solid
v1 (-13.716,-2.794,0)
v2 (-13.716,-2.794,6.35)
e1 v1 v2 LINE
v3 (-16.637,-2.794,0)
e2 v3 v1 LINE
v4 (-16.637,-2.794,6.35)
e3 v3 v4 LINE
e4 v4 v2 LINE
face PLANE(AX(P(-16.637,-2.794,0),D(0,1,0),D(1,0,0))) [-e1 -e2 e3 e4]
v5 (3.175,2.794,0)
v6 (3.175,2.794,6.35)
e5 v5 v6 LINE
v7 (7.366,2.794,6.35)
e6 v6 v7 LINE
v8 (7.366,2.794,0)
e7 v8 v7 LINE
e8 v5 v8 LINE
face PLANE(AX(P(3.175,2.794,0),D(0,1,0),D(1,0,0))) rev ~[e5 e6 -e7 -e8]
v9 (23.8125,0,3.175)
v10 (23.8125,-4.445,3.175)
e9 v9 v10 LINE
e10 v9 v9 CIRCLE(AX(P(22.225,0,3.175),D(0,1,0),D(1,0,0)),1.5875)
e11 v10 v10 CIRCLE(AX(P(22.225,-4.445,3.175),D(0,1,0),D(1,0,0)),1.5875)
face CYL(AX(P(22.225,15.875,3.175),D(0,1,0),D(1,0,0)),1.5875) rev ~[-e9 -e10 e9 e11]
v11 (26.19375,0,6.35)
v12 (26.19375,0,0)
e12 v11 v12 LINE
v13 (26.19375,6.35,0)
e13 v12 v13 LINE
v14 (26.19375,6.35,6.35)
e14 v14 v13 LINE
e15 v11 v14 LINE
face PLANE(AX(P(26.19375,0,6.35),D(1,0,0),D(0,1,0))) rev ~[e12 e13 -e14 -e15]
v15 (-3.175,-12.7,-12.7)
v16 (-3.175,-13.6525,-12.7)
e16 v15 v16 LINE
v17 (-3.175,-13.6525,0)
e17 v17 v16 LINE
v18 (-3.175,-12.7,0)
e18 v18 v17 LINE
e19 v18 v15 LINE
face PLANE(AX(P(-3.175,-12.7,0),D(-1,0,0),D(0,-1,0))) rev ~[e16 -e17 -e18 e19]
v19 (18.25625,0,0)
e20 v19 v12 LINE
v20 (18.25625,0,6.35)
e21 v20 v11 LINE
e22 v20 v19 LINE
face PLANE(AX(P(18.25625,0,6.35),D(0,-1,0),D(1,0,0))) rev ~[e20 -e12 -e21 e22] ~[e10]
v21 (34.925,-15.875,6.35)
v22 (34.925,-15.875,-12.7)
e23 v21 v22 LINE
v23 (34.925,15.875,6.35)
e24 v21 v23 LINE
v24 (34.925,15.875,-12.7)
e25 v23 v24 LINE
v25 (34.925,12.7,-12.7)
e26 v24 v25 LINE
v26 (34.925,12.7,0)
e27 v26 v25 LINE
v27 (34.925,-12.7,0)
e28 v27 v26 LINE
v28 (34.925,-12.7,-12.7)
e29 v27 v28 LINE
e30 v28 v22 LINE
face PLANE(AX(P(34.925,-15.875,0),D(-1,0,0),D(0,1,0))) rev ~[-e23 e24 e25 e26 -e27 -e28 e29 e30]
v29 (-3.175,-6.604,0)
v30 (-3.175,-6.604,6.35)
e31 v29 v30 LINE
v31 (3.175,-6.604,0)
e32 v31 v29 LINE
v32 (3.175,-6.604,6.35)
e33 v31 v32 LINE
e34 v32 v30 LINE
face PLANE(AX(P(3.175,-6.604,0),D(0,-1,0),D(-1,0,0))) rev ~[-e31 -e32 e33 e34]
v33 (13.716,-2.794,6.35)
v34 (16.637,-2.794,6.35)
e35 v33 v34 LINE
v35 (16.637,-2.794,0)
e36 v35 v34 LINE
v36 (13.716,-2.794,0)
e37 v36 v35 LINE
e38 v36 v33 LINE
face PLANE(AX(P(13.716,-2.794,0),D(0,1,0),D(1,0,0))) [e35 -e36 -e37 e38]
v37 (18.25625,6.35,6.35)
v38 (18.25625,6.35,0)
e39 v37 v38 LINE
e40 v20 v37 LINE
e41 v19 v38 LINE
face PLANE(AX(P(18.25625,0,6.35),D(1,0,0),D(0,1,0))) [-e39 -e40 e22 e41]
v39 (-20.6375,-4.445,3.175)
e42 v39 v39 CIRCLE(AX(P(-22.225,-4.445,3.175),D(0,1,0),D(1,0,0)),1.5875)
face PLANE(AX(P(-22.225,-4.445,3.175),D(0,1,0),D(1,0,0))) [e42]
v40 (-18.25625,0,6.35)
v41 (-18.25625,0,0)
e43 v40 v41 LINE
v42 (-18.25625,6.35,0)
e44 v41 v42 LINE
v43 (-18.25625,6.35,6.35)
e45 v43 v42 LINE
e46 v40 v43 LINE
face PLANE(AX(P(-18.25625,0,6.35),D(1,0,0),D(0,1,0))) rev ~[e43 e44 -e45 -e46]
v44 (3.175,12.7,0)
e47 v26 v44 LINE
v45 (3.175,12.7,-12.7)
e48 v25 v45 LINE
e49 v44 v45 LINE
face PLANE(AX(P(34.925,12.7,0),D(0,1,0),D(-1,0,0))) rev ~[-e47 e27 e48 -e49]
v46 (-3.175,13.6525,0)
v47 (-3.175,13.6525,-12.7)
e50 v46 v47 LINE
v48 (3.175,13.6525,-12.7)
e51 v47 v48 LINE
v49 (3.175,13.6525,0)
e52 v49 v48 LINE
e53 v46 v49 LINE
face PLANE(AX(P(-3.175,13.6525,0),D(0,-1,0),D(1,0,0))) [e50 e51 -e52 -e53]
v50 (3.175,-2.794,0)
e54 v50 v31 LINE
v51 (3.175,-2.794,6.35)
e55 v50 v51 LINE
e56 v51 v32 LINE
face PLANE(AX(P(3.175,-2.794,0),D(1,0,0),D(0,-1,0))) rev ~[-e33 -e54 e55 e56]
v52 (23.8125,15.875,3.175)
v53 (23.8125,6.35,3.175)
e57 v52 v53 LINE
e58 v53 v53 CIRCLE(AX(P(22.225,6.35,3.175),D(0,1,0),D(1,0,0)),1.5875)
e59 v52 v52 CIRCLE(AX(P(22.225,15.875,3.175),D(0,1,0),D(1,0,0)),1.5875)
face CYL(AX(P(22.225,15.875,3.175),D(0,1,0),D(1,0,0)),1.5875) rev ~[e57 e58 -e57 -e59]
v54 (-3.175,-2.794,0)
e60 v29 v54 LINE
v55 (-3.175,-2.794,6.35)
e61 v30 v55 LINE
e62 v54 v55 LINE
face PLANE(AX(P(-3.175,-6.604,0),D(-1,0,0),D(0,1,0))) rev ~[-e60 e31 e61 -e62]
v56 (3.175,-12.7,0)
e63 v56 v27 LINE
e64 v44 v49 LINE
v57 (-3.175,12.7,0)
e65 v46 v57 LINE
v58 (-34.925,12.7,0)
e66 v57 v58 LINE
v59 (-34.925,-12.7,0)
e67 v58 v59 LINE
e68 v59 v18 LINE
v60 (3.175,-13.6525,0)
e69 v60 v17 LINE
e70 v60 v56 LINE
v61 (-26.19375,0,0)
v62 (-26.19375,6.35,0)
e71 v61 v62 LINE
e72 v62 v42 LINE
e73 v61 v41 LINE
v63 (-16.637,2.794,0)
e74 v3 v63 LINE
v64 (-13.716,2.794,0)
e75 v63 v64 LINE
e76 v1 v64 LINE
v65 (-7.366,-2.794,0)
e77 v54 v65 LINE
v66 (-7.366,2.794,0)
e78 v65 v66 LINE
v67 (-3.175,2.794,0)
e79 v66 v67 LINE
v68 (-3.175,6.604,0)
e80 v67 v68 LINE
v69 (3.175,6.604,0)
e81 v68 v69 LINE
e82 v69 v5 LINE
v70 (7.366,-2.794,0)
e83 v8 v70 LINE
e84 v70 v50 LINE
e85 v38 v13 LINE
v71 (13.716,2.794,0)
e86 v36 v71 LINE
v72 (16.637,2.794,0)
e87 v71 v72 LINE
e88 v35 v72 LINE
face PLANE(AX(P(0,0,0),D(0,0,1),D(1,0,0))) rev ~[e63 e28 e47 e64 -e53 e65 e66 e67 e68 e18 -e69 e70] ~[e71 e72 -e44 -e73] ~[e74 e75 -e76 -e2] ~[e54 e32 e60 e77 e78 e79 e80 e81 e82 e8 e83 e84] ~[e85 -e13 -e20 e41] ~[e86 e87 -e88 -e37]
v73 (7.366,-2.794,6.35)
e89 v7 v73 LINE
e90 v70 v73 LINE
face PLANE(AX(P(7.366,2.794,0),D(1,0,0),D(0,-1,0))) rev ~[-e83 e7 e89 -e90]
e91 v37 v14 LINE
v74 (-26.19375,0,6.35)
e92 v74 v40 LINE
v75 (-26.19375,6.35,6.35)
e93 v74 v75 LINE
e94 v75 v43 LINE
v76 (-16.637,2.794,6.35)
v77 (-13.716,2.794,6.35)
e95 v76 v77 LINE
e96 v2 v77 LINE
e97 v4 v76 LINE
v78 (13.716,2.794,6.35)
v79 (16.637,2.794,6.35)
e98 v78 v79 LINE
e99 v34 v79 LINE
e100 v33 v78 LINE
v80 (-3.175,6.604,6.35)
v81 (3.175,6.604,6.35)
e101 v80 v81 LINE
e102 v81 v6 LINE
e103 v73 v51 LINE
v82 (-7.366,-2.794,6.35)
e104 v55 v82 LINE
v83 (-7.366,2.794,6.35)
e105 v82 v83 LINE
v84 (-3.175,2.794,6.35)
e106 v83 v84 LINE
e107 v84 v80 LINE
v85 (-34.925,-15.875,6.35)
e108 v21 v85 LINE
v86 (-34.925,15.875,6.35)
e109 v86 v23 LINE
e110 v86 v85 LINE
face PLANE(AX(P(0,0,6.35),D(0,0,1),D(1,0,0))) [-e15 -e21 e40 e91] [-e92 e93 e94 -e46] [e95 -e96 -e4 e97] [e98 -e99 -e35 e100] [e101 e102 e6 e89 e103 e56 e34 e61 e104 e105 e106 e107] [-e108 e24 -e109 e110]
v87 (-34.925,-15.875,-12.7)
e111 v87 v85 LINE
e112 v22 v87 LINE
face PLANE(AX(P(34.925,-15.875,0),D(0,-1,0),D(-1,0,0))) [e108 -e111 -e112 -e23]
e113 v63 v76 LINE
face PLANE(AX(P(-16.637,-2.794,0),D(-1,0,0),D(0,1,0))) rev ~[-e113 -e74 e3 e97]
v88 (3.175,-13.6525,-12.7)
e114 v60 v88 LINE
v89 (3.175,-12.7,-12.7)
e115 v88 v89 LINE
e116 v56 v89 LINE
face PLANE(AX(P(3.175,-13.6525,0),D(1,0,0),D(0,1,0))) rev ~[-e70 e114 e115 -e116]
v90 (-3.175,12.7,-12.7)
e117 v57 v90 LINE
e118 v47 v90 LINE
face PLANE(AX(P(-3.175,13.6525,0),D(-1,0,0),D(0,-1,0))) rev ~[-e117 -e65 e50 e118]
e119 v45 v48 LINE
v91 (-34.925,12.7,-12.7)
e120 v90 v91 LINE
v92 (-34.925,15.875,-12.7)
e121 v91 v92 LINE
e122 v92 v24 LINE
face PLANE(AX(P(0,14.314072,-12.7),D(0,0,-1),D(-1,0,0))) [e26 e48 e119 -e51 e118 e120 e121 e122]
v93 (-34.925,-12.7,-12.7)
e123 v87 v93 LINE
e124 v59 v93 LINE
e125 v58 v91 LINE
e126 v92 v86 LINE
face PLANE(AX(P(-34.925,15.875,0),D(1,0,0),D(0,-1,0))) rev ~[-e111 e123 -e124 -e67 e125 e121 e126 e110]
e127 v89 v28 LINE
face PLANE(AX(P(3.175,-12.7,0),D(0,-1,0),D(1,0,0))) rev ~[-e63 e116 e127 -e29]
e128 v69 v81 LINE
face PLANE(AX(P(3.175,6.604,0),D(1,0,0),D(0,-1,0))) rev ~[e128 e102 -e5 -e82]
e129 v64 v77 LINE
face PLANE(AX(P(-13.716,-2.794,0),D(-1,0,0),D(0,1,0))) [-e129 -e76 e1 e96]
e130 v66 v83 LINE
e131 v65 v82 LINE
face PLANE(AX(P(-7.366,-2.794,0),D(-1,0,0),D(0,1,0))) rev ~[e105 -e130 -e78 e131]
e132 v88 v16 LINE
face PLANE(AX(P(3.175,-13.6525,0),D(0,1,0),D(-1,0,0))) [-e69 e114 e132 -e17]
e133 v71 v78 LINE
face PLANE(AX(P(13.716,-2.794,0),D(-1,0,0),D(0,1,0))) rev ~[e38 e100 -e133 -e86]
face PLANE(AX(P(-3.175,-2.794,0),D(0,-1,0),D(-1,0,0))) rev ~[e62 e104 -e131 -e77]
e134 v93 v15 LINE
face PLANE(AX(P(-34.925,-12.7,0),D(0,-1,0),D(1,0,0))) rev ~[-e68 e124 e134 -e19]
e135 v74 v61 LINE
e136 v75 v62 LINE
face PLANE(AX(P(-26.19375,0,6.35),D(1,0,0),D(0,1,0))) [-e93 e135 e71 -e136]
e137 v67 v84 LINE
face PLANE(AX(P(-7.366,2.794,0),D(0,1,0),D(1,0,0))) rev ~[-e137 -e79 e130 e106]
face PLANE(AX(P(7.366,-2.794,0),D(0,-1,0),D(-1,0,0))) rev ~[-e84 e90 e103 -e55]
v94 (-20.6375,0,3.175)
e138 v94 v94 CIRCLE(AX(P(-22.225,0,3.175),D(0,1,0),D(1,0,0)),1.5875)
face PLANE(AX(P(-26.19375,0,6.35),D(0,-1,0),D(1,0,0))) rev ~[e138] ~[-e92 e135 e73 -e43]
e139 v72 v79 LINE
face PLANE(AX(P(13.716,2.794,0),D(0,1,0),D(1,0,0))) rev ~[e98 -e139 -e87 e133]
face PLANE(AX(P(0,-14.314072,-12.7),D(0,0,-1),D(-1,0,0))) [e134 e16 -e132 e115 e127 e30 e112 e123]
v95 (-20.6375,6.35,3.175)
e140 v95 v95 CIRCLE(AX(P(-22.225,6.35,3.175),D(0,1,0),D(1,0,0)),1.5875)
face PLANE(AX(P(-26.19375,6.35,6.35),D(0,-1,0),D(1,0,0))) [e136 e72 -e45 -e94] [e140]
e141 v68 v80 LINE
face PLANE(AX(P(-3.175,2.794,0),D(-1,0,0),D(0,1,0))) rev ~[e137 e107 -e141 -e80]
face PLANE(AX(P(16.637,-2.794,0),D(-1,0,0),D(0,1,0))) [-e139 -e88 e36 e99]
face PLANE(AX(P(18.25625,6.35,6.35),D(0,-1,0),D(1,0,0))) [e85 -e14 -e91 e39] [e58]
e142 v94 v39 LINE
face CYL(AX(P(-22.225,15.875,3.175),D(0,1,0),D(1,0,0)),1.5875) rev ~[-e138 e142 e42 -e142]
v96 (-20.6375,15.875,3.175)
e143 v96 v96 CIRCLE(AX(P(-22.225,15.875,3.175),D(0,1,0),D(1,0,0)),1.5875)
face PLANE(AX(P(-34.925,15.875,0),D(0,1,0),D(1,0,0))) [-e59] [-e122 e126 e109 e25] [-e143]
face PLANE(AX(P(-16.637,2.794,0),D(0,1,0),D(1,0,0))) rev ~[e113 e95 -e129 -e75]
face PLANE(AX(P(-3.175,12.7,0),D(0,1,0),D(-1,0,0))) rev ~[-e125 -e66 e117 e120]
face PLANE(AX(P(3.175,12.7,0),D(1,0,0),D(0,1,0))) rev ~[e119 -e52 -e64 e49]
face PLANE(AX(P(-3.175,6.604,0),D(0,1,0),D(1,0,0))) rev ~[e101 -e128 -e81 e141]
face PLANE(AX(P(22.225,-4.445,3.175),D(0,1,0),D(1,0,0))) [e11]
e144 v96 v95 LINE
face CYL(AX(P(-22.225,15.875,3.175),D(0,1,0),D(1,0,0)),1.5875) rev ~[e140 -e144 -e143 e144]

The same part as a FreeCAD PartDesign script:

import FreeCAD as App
import Part
import Sketcher
Q = App.Units.Quantity


def add_polygon(sketch, points):
    """Adds a closed chain of lines whose ends are joined by coincident constraints."""
    first, n = sketch.GeometryCount, len(points)
    for a, b in zip(points, points[1:] + points[:1]):
        sketch.addGeometry(Part.LineSegment(App.Vector(*a, 0), App.Vector(*b, 0)), False)
    for i in range(n):
        sketch.addConstraint(Sketcher.Constraint("Coincident", first + i, 2, first + (i + 1) % n, 1))

doc = App.newDocument("Part")
body = doc.addObject("PartDesign::Body", "Body")

sketch1 = body.newObject("Sketcher::SketchObject", "Sketch")
sketch1.AttachmentSupport = (doc.getObject("XY_Plane"), [""])
sketch1.MapMode = "FlatFace"
add_polygon(sketch1, [(3.2, 12.7), (34.9, 12.7), (34.9, 15.9), (-34.9, 15.9), (-34.9, 12.7), (-3.2, 12.7), (-3.2, 13.7), (3.2, 13.7)])
sketch1.addConstraint(Sketcher.Constraint("Horizontal", 0))
sketch1.addConstraint(Sketcher.Constraint("Vertical", 1))
sketch1.addConstraint(Sketcher.Constraint("Horizontal", 2))
sketch1.addConstraint(Sketcher.Constraint("Vertical", 3))
sketch1.addConstraint(Sketcher.Constraint("Horizontal", 4))
sketch1.addConstraint(Sketcher.Constraint("Vertical", 5))
sketch1.addConstraint(Sketcher.Constraint("Horizontal", 6))
sketch1.addConstraint(Sketcher.Constraint("Vertical", 7))
sketch1.addConstraint(Sketcher.Constraint("Symmetric", 0, 2, 3, 2, -2))
sketch1.addConstraint(Sketcher.Constraint("Equal", 0, 4))
sketch1.addConstraint(Sketcher.Constraint("DistanceX", 0, 1, 0, 2, Q("1.25 in")))
sketch1.addConstraint(Sketcher.Constraint("DistanceX", 2, 2, 2, 1, Q("2.75 in")))
sketch1.addConstraint(Sketcher.Constraint("DistanceY", -1, 1, 0, 2, Q("0.5 in")))
sketch1.addConstraint(Sketcher.Constraint("DistanceY", 1, 1, 1, 2, Q("0.125 in")))
sketch1.addConstraint(Sketcher.Constraint("DistanceY", 5, 1, 5, 2, Q("0.0375 in")))
pad1 = body.newObject("PartDesign::Pad", "Pad")
pad1.Profile = sketch1
pad1.Length = Q("0.5 in")
pad1.Reversed = True
body2 = doc.addObject("PartDesign::Body", "Body001")

sketch2 = body2.newObject("Sketcher::SketchObject", "Sketch001")
sketch2.AttachmentSupport = (doc.getObject("XY_Plane001"), [""])
sketch2.MapMode = "FlatFace"
add_polygon(sketch2, [(-3.2, -12.7), (-34.9, -12.7), (-34.9, -15.9), (34.9, -15.9), (34.9, -12.7), (3.2, -12.7), (3.2, -13.7), (-3.2, -13.7)])
sketch2.addConstraint(Sketcher.Constraint("Horizontal", 0))
sketch2.addConstraint(Sketcher.Constraint("Vertical", 1))
sketch2.addConstraint(Sketcher.Constraint("Horizontal", 2))
sketch2.addConstraint(Sketcher.Constraint("Vertical", 3))
sketch2.addConstraint(Sketcher.Constraint("Horizontal", 4))
sketch2.addConstraint(Sketcher.Constraint("Vertical", 5))
sketch2.addConstraint(Sketcher.Constraint("Horizontal", 6))
sketch2.addConstraint(Sketcher.Constraint("Vertical", 7))
sketch2.addConstraint(Sketcher.Constraint("Symmetric", 0, 2, 3, 2, -2))
sketch2.addConstraint(Sketcher.Constraint("Equal", 0, 4))
sketch2.addConstraint(Sketcher.Constraint("DistanceX", 0, 2, 0, 1, Q("1.25 in")))
sketch2.addConstraint(Sketcher.Constraint("DistanceX", 2, 1, 2, 2, Q("2.75 in")))
sketch2.addConstraint(Sketcher.Constraint("DistanceY", 0, 2, -1, 1, Q("0.5 in")))
sketch2.addConstraint(Sketcher.Constraint("DistanceY", 1, 2, 1, 1, Q("0.125 in")))
sketch2.addConstraint(Sketcher.Constraint("DistanceY", 5, 2, 5, 1, Q("0.0375 in")))
pad2 = body2.newObject("PartDesign::Pad", "Pad001")
pad2.Profile = sketch2
pad2.Length = Q("0.5 in")
pad2.Reversed = True
body.AllowCompound = True
doc.recompute()

boolean = body.newObject("PartDesign::Boolean", "Boolean")
boolean.Type = "Fuse"
boolean.addObjects([body2])

sketch3 = body.newObject("Sketcher::SketchObject", "Sketch002")
sketch3.AttachmentSupport = (doc.getObject("XY_Plane"), [""])
sketch3.MapMode = "FlatFace"
add_polygon(sketch3, [(34.9, 15.9), (-34.9, 15.9), (-34.9, -15.9), (34.9, -15.9)])
add_polygon(sketch3, [(-13.7, -2.8), (-16.6, -2.8), (-16.6, 2.8), (-13.7, 2.8)])
add_polygon(sketch3, [(3.2, -2.8), (3.2, -6.6), (-3.2, -6.6), (-3.2, -2.8), (-7.4, -2.8), (-7.4, 2.8), (-3.2, 2.8), (-3.2, 6.6), (3.2, 6.6), (3.2, 2.8), (7.4, 2.8), (7.4, -2.8)])
add_polygon(sketch3, [(16.6, -2.8), (13.7, -2.8), (13.7, 2.8), (16.6, 2.8)])
sketch3.addConstraint(Sketcher.Constraint("Horizontal", 0))
sketch3.addConstraint(Sketcher.Constraint("Vertical", 1))
sketch3.addConstraint(Sketcher.Constraint("Horizontal", 2))
sketch3.addConstraint(Sketcher.Constraint("Vertical", 3))
sketch3.addConstraint(Sketcher.Constraint("Horizontal", 4))
sketch3.addConstraint(Sketcher.Constraint("Vertical", 5))
sketch3.addConstraint(Sketcher.Constraint("Horizontal", 6))
sketch3.addConstraint(Sketcher.Constraint("Vertical", 7))
sketch3.addConstraint(Sketcher.Constraint("Vertical", 8))
sketch3.addConstraint(Sketcher.Constraint("Horizontal", 9))
sketch3.addConstraint(Sketcher.Constraint("Vertical", 10))
sketch3.addConstraint(Sketcher.Constraint("Horizontal", 11))
sketch3.addConstraint(Sketcher.Constraint("Vertical", 12))
sketch3.addConstraint(Sketcher.Constraint("Horizontal", 13))
sketch3.addConstraint(Sketcher.Constraint("Vertical", 14))
sketch3.addConstraint(Sketcher.Constraint("Horizontal", 15))
sketch3.addConstraint(Sketcher.Constraint("Vertical", 16))
sketch3.addConstraint(Sketcher.Constraint("Horizontal", 17))
sketch3.addConstraint(Sketcher.Constraint("Vertical", 18))
sketch3.addConstraint(Sketcher.Constraint("Horizontal", 19))
sketch3.addConstraint(Sketcher.Constraint("Horizontal", 20))
sketch3.addConstraint(Sketcher.Constraint("Vertical", 21))
sketch3.addConstraint(Sketcher.Constraint("Horizontal", 22))
sketch3.addConstraint(Sketcher.Constraint("Vertical", 23))
sketch3.addConstraint(Sketcher.Constraint("Symmetric", 0, 2, 2, 2, -1, 1))
sketch3.addConstraint(Sketcher.Constraint("Symmetric", 8, 2, 14, 2, -1, 1))
sketch3.addConstraint(Sketcher.Constraint("Symmetric", 10, 2, 16, 2, -1, 1))
sketch3.addConstraint(Sketcher.Constraint("Symmetric", 12, 2, 18, 2, -1, 1))
sketch3.addConstraint(Sketcher.Constraint("Symmetric", 6, 2, 20, 2, -1, 1))
sketch3.addConstraint(Sketcher.Constraint("Symmetric", 4, 2, 22, 2, -1, 1))
sketch3.addConstraint(Sketcher.Constraint("Symmetric", 13, 2, 16, 2, -2))
sketch3.addConstraint(Sketcher.Constraint("Horizontal", 7, 2, 10, 2))
sketch3.addConstraint(Sketcher.Constraint("Horizontal", 6, 2, 12, 2))
sketch3.addConstraint(Sketcher.Constraint("DistanceX", 0, 2, 0, 1, Q("2.75 in")))
sketch3.addConstraint(Sketcher.Constraint("DistanceX", 9, 2, 9, 1, Q("0.25 in")))
sketch3.addConstraint(Sketcher.Constraint("DistanceY", 1, 2, 1, 1, Q("1.25 in")))
sketch3.addConstraint(Sketcher.Constraint("DistanceY", 5, 1, 5, 2, Q("0.22 in")))
sketch3.addConstraint(Sketcher.Constraint("DistanceY", 8, 2, 8, 1, Q("0.15 in")))
sketch3.addConstraint(Sketcher.Constraint("DistanceX", 4, 2, 4, 1, Q("0.115 in")))
sketch3.addConstraint(Sketcher.Constraint("DistanceX", 11, 2, 11, 1, Q("0.165 in")))
sketch3.addConstraint(Sketcher.Constraint("DistanceX", 6, 2, -1, 1, Q("0.54 in")))
pad3 = body.newObject("PartDesign::Pad", "Pad002")
pad3.Profile = sketch3
pad3.Length = Q("0.25 in")

sketch4 = body.newObject("Sketcher::SketchObject", "Sketch003")
sketch4.AttachmentSupport = (doc.getObject("XZ_Plane"), [""])
sketch4.MapMode = "FlatFace"
sketch4.AttachmentOffset = App.Placement(App.Vector(0, 0, -0.625 * 25.4), App.Rotation())
sketch4.addGeometry(Part.Circle(App.Vector(22.2, 3.2, 0), App.Vector(0, 0, 1), 1.6), False)
sketch4.addGeometry(Part.Circle(App.Vector(-22.2, 3.2, 0), App.Vector(0, 0, 1), 1.6), False)
sketch4.addConstraint(Sketcher.Constraint("Equal", 0, 1))
sketch4.addConstraint(Sketcher.Constraint("Symmetric", 0, 3, 1, 3, -2))
sketch4.addConstraint(Sketcher.Constraint("Diameter", 0, Q("0.125 in")))
sketch4.addConstraint(Sketcher.Constraint("DistanceX", 1, 3, 0, 3, Q("1.75 in")))
sketch4.addConstraint(Sketcher.Constraint("DistanceY", -1, 1, 0, 3, Q("0.125 in")))
pocket1 = body.newObject("PartDesign::Pocket", "Pocket")
pocket1.Profile = sketch4
pocket1.Length = Q("0.8 in")
pocket1.Reversed = True

sketch5 = body.newObject("Sketcher::SketchObject", "Sketch004")
sketch5.AttachmentSupport = (doc.getObject("XY_Plane"), [""])
sketch5.MapMode = "FlatFace"
sketch5.AttachmentOffset = App.Placement(App.Vector(0, 0, 0.25 * 25.4), App.Rotation())
add_polygon(sketch5, [(-26, 6), (-26, 0), (-18, 0), (-18, 6)])
add_polygon(sketch5, [(18, 6), (18, 0), (26, 0), (26, 6)])
sketch5.addConstraint(Sketcher.Constraint("Vertical", 0))
sketch5.addConstraint(Sketcher.Constraint("Horizontal", 1))
sketch5.addConstraint(Sketcher.Constraint("Vertical", 2))
sketch5.addConstraint(Sketcher.Constraint("Horizontal", 3))
sketch5.addConstraint(Sketcher.Constraint("Vertical", 4))
sketch5.addConstraint(Sketcher.Constraint("Horizontal", 5))
sketch5.addConstraint(Sketcher.Constraint("Vertical", 6))
sketch5.addConstraint(Sketcher.Constraint("Horizontal", 7))
sketch5.addConstraint(Sketcher.Constraint("Symmetric", 1, 2, 4, 2, -1, 1))
sketch5.addConstraint(Sketcher.Constraint("Symmetric", 0, 2, 5, 2, -2))
sketch5.addConstraint(Sketcher.Constraint("Horizontal", 3, 2, 6, 2))
sketch5.addConstraint(Sketcher.Constraint("DistanceY", 0, 2, 0, 1, Q("0.25 in")))
sketch5.addConstraint(Sketcher.Constraint("DistanceX", 1, 1, 1, 2, Q("0.3125 in")))
sketch5.addConstraint(Sketcher.Constraint("DistanceX", 0, 2, 4, 2, Q("1.75 in")))
pocket2 = body.newObject("PartDesign::Pocket", "Pocket001")
pocket2.Profile = sketch5
pocket2.Length = Q("0.25 in")

doc.recompute()
